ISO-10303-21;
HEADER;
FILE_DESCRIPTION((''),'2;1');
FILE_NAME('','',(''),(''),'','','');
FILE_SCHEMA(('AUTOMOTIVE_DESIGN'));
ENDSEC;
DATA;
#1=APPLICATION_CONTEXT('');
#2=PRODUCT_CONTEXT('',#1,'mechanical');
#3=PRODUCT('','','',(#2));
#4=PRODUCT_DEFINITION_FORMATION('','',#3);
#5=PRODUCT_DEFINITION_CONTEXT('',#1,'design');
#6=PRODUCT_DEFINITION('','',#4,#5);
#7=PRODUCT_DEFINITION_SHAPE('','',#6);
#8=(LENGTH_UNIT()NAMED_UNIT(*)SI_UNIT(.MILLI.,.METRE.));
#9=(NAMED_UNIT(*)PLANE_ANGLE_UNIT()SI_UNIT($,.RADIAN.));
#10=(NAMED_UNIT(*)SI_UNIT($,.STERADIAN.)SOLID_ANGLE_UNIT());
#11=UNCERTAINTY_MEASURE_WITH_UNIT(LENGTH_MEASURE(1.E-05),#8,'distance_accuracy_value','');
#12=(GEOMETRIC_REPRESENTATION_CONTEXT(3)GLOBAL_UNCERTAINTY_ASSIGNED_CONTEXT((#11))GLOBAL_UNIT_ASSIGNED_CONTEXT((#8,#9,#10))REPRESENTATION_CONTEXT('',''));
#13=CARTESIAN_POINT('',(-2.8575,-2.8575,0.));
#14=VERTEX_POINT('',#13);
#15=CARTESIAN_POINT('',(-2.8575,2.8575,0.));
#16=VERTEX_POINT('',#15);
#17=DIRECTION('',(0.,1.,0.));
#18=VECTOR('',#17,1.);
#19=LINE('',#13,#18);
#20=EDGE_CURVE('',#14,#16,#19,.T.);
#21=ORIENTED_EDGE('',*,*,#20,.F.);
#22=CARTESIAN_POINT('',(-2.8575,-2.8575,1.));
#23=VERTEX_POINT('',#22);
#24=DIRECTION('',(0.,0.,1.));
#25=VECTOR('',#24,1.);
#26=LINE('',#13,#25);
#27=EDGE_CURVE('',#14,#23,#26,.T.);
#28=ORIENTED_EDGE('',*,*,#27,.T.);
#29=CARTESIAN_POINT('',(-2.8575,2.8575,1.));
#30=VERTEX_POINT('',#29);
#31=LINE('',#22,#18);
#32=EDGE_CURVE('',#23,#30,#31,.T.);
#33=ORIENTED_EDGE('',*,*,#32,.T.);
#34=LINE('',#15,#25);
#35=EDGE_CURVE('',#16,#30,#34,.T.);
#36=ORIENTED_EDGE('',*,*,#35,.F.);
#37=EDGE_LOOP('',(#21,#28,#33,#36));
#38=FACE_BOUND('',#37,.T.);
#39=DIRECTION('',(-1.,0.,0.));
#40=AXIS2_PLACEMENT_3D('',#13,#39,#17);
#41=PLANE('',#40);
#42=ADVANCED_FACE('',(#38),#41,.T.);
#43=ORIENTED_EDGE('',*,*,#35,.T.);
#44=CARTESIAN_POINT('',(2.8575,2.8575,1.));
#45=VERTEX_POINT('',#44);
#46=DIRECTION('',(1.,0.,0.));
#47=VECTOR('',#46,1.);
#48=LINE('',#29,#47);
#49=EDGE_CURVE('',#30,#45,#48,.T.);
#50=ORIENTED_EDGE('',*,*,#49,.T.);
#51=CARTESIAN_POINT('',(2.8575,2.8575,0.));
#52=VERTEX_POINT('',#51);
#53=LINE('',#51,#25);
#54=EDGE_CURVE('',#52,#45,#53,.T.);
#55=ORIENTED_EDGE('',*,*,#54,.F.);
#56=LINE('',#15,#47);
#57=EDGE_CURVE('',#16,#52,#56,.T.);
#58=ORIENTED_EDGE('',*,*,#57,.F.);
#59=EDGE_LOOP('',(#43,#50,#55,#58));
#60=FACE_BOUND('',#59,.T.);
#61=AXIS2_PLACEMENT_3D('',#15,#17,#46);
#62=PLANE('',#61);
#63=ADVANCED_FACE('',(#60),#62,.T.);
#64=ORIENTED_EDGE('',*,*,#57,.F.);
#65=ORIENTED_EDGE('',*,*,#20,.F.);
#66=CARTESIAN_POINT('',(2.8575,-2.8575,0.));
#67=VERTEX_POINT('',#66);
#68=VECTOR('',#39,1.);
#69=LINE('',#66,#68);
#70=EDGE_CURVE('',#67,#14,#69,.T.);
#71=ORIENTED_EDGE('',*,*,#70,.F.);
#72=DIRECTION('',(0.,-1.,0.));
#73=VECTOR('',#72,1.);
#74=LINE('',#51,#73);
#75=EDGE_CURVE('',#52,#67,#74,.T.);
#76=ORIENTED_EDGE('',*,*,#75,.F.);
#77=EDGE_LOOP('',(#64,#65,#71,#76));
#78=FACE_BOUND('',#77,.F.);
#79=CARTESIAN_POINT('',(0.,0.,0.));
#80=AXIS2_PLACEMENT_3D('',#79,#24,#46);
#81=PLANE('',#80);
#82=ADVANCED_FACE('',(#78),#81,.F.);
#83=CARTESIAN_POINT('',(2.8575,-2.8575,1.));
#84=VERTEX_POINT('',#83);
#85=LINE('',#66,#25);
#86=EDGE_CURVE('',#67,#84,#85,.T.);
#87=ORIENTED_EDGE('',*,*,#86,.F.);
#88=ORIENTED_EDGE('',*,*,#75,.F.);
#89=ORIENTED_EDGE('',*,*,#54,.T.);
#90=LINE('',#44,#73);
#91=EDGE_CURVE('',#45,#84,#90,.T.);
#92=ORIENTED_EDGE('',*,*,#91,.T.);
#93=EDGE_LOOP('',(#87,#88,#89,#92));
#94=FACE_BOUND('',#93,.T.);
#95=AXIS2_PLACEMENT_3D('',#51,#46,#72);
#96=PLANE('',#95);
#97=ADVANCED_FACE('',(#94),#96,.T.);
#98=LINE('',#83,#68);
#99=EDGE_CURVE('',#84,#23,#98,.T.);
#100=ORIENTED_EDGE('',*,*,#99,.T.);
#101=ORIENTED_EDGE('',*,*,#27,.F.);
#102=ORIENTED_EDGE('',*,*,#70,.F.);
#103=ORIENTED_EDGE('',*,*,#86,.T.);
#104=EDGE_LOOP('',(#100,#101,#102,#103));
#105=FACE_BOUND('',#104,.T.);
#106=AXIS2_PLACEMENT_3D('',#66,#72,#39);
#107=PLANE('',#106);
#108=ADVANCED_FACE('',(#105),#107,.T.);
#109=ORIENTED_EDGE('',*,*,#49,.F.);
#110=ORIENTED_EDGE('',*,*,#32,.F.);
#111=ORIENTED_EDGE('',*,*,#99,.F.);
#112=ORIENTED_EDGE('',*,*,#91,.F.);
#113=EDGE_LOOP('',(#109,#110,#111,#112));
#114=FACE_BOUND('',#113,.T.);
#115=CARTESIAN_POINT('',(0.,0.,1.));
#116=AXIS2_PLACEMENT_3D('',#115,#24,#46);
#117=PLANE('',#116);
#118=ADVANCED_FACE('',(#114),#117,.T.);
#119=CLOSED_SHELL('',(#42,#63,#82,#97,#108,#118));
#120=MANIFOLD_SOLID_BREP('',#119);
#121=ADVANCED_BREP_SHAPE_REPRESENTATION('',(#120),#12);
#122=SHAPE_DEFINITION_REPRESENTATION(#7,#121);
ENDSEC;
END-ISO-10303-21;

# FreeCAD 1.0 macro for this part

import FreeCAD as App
import Part
import Sketcher
from FreeCAD import Vector


def add_polygon(sketch, points):
    """Adds a closed chain of lines whose ends are joined by coincident constraints."""
    first, n = sketch.GeometryCount, len(points)
    for a, b in zip(points, points[1:] + points[:1]):
        sketch.addGeometry(Part.LineSegment(App.Vector(*a, 0), App.Vector(*b, 0)), False)
    for i in range(n):
        sketch.addConstraint(Sketcher.Constraint("Coincident", first + i, 2, first + (i + 1) % n, 1))

doc = App.newDocument("Part")
body = doc.addObject("PartDesign::Body", "Body")

# Sketch on XY plane
sketch1 = body.newObject("Sketcher::SketchObject", "Sketch")
sketch1.AttachmentSupport = (doc.getObject("XY_Plane"), [""])
sketch1.MapMode = "FlatFace"
add_polygon(sketch1, [(3, 3), (-3, 3), (-3, -3), (3, -3)])  # lines 0-3
sketch1.addConstraint([
    Sketcher.Constraint("Horizontal", 0),
    Sketcher.Constraint("Vertical", 1),
    Sketcher.Constraint("Horizontal", 2),
    Sketcher.Constraint("Vertical", 3),
    Sketcher.Constraint("Symmetric", 0, 2, 2, 2, -1, 1),
    Sketcher.Constraint("Equal", 2, 1),
    Sketcher.Constraint("DistanceX", 0, 2, 0, 1, 5.715),
])
pad1 = body.newObject("PartDesign::Pad", "Pad")
pad1.Profile = sketch1
pad1.Length = 1

doc.recompute()
